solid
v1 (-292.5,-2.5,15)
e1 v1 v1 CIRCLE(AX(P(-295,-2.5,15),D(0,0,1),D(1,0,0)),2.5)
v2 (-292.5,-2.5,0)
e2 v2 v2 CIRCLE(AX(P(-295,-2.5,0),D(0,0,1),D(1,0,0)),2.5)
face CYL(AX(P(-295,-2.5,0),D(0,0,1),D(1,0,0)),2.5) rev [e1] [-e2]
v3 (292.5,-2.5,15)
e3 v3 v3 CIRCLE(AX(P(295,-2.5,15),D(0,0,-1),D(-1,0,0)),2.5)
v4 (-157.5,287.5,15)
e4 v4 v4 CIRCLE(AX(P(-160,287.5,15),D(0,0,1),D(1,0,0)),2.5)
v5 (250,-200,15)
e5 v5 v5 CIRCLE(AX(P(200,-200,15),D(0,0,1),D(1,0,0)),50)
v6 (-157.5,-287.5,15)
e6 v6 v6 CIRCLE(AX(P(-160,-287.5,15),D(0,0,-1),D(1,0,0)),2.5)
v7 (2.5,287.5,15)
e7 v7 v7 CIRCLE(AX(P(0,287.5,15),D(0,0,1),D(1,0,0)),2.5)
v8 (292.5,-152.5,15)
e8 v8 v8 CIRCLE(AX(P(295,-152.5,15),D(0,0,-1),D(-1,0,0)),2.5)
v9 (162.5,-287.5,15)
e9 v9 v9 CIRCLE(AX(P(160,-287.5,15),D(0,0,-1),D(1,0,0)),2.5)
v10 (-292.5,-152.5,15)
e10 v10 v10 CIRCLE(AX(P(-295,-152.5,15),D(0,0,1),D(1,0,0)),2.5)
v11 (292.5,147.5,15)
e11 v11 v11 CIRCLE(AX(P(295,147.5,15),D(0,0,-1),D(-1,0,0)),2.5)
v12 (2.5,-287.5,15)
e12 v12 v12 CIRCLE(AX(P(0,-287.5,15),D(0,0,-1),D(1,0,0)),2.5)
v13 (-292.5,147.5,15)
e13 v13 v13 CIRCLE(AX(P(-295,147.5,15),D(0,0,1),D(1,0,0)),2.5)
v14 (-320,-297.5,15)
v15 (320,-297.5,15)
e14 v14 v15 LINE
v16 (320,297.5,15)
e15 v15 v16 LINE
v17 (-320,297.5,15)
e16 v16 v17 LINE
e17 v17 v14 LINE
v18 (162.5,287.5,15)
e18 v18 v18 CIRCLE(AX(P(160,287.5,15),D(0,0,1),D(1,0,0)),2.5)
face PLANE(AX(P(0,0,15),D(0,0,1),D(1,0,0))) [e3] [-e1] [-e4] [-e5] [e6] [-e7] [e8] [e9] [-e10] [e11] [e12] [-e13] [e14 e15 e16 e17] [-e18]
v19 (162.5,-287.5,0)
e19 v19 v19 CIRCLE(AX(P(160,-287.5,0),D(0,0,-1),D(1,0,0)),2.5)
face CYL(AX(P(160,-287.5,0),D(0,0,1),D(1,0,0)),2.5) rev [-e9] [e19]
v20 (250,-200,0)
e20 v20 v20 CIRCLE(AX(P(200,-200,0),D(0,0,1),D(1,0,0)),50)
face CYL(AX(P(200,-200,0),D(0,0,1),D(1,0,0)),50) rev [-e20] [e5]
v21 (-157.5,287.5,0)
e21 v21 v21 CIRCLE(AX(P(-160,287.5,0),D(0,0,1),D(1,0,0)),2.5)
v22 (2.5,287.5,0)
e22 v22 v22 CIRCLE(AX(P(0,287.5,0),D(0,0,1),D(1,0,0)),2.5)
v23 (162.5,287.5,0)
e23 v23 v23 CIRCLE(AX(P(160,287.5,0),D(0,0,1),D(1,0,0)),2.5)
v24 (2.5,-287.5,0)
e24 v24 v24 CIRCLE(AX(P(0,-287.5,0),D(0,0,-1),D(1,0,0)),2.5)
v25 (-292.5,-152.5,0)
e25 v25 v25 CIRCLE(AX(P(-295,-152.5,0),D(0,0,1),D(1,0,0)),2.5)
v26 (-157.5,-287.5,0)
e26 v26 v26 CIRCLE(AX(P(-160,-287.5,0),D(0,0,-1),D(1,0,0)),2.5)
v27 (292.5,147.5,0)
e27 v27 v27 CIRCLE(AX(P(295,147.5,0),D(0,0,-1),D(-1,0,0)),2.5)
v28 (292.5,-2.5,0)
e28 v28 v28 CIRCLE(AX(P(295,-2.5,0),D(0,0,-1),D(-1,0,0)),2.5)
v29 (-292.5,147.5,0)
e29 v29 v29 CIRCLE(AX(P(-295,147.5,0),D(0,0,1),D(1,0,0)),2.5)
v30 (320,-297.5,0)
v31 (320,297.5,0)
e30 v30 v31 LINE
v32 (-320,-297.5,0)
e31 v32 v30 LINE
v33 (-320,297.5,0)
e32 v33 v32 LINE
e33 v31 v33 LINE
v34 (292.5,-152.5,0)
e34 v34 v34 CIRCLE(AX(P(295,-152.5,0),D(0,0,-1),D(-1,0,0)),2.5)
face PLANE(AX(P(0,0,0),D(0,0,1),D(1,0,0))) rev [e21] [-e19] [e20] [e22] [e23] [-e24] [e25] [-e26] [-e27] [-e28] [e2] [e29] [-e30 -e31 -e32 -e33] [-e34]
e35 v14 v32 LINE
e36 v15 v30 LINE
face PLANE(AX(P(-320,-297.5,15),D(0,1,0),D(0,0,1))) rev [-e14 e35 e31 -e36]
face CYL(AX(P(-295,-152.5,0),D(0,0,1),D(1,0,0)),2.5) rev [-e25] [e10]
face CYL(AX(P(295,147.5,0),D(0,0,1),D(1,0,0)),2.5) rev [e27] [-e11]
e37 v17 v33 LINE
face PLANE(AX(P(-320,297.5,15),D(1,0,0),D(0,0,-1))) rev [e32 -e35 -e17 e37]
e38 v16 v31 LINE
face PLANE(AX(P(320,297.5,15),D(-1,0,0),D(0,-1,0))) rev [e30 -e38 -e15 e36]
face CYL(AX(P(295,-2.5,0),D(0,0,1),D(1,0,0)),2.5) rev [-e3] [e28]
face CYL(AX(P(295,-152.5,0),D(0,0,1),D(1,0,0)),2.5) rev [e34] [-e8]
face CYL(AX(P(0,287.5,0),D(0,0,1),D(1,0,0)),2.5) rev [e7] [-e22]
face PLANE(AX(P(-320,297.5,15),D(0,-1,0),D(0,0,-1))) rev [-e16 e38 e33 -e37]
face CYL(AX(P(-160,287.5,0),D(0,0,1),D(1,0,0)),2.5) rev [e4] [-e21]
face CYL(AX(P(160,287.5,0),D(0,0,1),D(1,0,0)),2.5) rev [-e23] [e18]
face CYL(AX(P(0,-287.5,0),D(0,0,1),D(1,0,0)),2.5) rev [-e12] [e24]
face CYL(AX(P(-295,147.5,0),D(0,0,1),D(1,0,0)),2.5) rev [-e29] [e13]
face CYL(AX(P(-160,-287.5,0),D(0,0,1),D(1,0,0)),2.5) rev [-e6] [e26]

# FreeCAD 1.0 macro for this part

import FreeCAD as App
import Part
import Sketcher

V = App.Vector
Q = App.Units.Quantity

doc = App.newDocument("Part")
body = doc.addObject("PartDesign::Body", "Body")

# Sketch on XY plane
sketch1 = doc.addObject("Sketcher::SketchObject", "Sketch")
body.addObject(sketch1)
sketch1.AttachmentSupport = (doc.XY_Plane, [""])
sketch1.MapMode = "FlatFace"
sketch1.addGeometry([
    Part.LineSegment(V(-320, 297.5, 0), V(-320, -297.5, 0)),
    Part.LineSegment(V(-320, -297.5, 0), V(320, -297.5, 0)),
    Part.LineSegment(V(320, -297.5, 0), V(320, 297.5, 0)),
    Part.LineSegment(V(320, 297.5, 0), V(-320, 297.5, 0)),
], False)
sketch1.addConstraint([
    Sketcher.Constraint("Coincident", 0, 2, 1, 1),
    Sketcher.Constraint("Coincident", 1, 2, 2, 1),
    Sketcher.Constraint("Coincident", 2, 2, 3, 1),
    Sketcher.Constraint("Coincident", 3, 2, 0, 1),
    Sketcher.Constraint("Vertical", 0),
    Sketcher.Constraint("Horizontal", 1),
    Sketcher.Constraint("Vertical", 2),
    Sketcher.Constraint("Horizontal", 3),
    Sketcher.Constraint("Symmetric", 0, 2, 2, 2, -1, 1),
    Sketcher.Constraint("DistanceX", 1, 1, 1, 2, Q("640 mm")),
    Sketcher.Constraint("DistanceY", 0, 2, 0, 1, Q("595 mm")),
])
pad1 = doc.addObject("PartDesign::Pad", "Pad")
body.addObject(pad1)
pad1.Profile = sketch1
pad1.Length = 15

# Sketch on XY plane
sketch2 = doc.addObject("Sketcher::SketchObject", "Sketch001")
body.addObject(sketch2)
sketch2.AttachmentSupport = (doc.XY_Plane, [""])
sketch2.MapMode = "FlatFace"
sketch2.AttachmentOffset = App.Placement(V(0, 0, 15), App.Rotation())
sketch2.addGeometry([
    Part.Circle(V(-160, 287.5, 0), V(0, 0, 1), 2.5),
    Part.Circle(V(0, 287.5, 0), V(0, 0, 1), 2.5),
    Part.Circle(V(160, 287.5, 0), V(0, 0, 1), 2.5),
], False)
sketch2.addConstraint([
    Sketcher.Constraint("Equal", 0, 1),
    Sketcher.Constraint("Equal", 1, 2),
    Sketcher.Constraint("Symmetric", 0, 3, 2, 3, -2),
    Sketcher.Constraint("PointOnObject", 1, 3, -2),
    Sketcher.Constraint("Horizontal", 0, 3, 1, 3),
    Sketcher.Constraint("Diameter", 0, Q("5 mm")),
    Sketcher.Constraint("DistanceX", 0, 3, -1, 1, Q("160 mm")),
    Sketcher.Constraint("DistanceY", -1, 1, 0, 3, Q("287.5 mm")),
])
pocket1 = doc.addObject("PartDesign::Pocket", "Pocket")
body.addObject(pocket1)
pocket1.Profile = sketch2
pocket1.Type = "ThroughAll"

# Sketch on XY plane
sketch3 = doc.addObject("Sketcher::SketchObject", "Sketch002")
body.addObject(sketch3)
sketch3.AttachmentSupport = (doc.XY_Plane, [""])
sketch3.MapMode = "FlatFace"
sketch3.AttachmentOffset = App.Placement(V(0, 0, 15), App.Rotation())
sketch3.addGeometry([
    Part.Circle(V(-295, 147.5, 0), V(0, 0, 1), 2.5),
    Part.Circle(V(-295, -2.5, 0), V(0, 0, 1), 2.5),
    Part.Circle(V(-295, -152.5, 0), V(0, 0, 1), 2.5),
], False)
sketch3.addConstraint([
    Sketcher.Constraint("Equal", 0, 1),
    Sketcher.Constraint("Equal", 1, 2),
    Sketcher.Constraint("Vertical", 0, 3, 1, 3),
    Sketcher.Constraint("Vertical", 1, 3, 2, 3),
    Sketcher.Constraint("Diameter", 0, Q("5 mm")),
    Sketcher.Constraint("DistanceX", 0, 3, -1, 1, Q("295 mm")),
    Sketcher.Constraint("DistanceY", 1, 3, 0, 3, Q("150 mm")),
    Sketcher.Constraint("DistanceY", 2, 3, 1, 3, Q("150 mm")),
    Sketcher.Constraint("DistanceY", -1, 1, 0, 3, Q("147.5 mm")),
])
pocket2 = doc.addObject("PartDesign::Pocket", "Pocket001")
body.addObject(pocket2)
pocket2.Profile = sketch3
pocket2.Type = "ThroughAll"
doc.recompute()

mirrored = doc.addObject("PartDesign::Mirrored", "Mirrored")
body.addObject(mirrored)
mirrored.Originals = [pocket1]
mirrored.MirrorPlane = (doc.XZ_Plane, [""])
body.Tip = mirrored
doc.recompute()

mirrored2 = doc.addObject("PartDesign::Mirrored", "Mirrored001")
body.addObject(mirrored2)
mirrored2.Originals = [pocket2]
mirrored2.MirrorPlane = (doc.YZ_Plane, [""])
body.Tip = mirrored2

# Sketch on XY plane
sketch4 = doc.addObject("Sketcher::SketchObject", "Sketch003")
body.addObject(sketch4)
sketch4.AttachmentSupport = (doc.XY_Plane, [""])
sketch4.MapMode = "FlatFace"
sketch4.AttachmentOffset = App.Placement(V(0, 0, 15), App.Rotation())
sketch4.addGeometry(Part.Circle(V(200, -200, 0), V(0, 0, 1), 50), False)
sketch4.addConstraint([
    Sketcher.Constraint("Diameter", 0, Q("100 mm")),
    Sketcher.Constraint("DistanceX", -1, 1, 0, 3, Q("200 mm")),
    Sketcher.Constraint("DistanceY", 0, 3, -1, 1, Q("200 mm")),
])
pocket3 = doc.addObject("PartDesign::Pocket", "Pocket002")
body.addObject(pocket3)
pocket3.Profile = sketch4
pocket3.Type = "ThroughAll"

doc.recompute()
